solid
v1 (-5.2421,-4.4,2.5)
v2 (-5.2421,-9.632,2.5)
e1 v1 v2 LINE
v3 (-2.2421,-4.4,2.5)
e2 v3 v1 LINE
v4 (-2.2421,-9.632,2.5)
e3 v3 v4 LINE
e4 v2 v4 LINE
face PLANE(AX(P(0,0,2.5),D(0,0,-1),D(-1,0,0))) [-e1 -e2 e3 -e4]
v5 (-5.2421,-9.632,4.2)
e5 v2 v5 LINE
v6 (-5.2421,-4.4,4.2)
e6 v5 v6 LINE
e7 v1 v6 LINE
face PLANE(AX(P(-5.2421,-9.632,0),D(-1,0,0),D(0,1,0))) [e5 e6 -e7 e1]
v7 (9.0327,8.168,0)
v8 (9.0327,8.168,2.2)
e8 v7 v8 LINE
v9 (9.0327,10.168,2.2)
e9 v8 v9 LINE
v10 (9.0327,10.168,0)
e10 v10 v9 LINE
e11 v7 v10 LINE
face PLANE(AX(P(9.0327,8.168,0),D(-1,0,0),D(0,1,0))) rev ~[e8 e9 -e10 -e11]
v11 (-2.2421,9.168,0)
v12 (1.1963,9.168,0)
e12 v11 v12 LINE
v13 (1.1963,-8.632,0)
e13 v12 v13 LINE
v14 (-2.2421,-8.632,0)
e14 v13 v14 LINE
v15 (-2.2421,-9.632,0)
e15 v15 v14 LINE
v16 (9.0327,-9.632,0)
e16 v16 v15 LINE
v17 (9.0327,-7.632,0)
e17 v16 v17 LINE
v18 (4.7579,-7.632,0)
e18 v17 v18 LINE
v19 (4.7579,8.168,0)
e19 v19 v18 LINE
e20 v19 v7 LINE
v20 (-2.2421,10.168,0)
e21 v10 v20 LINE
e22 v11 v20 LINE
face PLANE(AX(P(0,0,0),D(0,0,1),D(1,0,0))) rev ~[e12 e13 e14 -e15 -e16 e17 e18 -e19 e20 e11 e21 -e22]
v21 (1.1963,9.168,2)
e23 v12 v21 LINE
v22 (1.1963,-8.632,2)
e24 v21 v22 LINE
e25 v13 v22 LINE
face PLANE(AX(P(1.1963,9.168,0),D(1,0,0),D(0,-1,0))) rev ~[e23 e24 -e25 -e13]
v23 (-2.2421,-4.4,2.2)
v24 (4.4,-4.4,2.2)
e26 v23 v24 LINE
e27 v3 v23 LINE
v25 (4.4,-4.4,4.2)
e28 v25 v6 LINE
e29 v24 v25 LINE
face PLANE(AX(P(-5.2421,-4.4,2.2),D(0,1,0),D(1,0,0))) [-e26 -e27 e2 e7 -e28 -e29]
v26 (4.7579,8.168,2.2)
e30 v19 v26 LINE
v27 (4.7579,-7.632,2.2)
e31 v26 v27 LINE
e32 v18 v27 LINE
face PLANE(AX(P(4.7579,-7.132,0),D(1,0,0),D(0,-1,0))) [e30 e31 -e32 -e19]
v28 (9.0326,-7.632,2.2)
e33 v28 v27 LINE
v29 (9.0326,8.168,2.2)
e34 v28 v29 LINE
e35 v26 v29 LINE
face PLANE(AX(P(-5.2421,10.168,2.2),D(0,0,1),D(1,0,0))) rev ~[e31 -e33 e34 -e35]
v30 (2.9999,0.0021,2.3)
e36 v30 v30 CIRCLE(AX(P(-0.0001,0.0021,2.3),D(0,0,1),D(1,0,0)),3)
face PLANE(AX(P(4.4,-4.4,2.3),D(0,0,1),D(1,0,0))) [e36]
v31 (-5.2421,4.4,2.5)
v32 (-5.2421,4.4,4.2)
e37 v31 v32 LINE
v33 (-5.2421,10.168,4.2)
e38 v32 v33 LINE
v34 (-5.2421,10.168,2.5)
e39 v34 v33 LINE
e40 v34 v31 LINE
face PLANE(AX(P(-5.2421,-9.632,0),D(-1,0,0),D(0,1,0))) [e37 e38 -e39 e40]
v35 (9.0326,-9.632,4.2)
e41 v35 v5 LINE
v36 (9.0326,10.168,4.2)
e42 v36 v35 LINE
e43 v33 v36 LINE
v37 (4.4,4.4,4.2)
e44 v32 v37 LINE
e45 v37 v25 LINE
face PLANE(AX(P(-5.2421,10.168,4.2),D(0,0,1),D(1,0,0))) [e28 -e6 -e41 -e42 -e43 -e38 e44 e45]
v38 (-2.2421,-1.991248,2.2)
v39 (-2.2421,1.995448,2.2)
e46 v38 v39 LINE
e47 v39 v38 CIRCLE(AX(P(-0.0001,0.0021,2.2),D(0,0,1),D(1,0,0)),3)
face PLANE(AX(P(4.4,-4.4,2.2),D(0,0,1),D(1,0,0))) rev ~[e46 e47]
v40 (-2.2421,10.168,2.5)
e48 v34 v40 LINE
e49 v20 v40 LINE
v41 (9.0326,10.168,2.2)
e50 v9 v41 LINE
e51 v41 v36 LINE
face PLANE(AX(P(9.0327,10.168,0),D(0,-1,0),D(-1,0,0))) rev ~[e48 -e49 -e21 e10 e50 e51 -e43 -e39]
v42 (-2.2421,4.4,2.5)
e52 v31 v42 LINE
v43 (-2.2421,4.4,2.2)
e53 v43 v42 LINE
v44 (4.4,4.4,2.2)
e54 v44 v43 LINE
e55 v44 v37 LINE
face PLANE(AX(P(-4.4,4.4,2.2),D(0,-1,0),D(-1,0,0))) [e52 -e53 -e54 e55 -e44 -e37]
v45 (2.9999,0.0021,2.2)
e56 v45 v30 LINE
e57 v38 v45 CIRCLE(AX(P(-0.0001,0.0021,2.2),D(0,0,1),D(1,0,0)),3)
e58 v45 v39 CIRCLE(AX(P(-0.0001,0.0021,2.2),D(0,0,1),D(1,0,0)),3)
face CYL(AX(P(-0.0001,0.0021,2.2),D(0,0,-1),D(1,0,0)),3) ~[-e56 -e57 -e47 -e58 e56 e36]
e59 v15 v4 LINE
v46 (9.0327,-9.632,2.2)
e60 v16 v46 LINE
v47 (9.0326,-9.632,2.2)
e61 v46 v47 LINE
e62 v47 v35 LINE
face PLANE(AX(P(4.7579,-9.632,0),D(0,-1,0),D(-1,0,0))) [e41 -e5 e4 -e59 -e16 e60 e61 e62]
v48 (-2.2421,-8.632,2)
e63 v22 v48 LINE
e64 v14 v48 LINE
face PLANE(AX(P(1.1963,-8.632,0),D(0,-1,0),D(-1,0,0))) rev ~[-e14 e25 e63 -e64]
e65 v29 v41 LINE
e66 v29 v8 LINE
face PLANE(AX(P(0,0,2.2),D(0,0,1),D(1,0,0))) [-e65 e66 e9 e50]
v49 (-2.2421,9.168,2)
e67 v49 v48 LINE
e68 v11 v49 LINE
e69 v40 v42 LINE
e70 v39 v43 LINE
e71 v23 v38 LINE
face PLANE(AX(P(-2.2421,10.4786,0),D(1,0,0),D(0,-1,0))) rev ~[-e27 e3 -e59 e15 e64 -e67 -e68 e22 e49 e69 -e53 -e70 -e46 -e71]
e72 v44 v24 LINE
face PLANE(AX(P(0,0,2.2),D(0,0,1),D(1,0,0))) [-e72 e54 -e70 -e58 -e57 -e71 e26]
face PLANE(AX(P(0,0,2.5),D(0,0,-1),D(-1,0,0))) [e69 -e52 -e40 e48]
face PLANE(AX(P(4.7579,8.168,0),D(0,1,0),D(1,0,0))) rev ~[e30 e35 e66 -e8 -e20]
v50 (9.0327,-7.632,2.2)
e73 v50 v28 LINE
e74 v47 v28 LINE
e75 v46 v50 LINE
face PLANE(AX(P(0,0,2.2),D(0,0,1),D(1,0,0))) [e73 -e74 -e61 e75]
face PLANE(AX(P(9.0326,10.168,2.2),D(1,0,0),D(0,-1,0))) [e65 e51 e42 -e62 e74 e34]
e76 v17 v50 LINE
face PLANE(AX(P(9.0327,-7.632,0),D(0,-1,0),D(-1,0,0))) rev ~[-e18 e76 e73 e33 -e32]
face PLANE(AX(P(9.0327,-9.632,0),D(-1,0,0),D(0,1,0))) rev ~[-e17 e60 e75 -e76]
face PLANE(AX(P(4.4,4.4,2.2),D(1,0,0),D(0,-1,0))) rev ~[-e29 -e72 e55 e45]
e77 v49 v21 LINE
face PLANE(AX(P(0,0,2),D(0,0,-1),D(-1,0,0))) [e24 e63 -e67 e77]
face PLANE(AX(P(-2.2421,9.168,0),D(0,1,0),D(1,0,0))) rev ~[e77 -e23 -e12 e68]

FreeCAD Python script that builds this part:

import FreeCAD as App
import Part
import Sketcher

V = App.Vector
Q = App.Units.Quantity

doc = App.newDocument("Part")
body = doc.addObject("PartDesign::Body", "Body")

# Sketch on XY plane
sketch1 = body.newObject("Sketcher::SketchObject", "Sketch")
sketch1.AttachmentSupport = (doc.getObject("XY_Plane"), [""])
sketch1.MapMode = "FlatFace"
sketch1.addGeometry([
    Part.LineSegment(V(4.8, -7.6, 0), V(4.8, 8.2, 0)),  # 0
    Part.LineSegment(V(4.8, 8.2, 0), V(9, 8.2, 0)),  # 1
    Part.LineSegment(V(9, 8.2, 0), V(9, 10.2, 0)),  # 2
    Part.LineSegment(V(9, 10.2, 0), V(-5.2, 10.2, 0)),  # 3
    Part.LineSegment(V(-5.2, 10.2, 0), V(-5.2, -9.6, 0)),  # 4
    Part.LineSegment(V(-5.2, -9.6, 0), V(9, -9.6, 0)),  # 5
    Part.LineSegment(V(9, -9.6, 0), V(9, -7.6, 0)),  # 6
    Part.LineSegment(V(9, -7.6, 0), V(4.8, -7.6, 0)),  # 7
], False)
sketch1.addConstraint([
    Sketcher.Constraint("Coincident", 0, 2, 1, 1),
    Sketcher.Constraint("Coincident", 1, 2, 2, 1),
    Sketcher.Constraint("Coincident", 2, 2, 3, 1),
    Sketcher.Constraint("Coincident", 3, 2, 4, 1),
    Sketcher.Constraint("Coincident", 4, 2, 5, 1),
    Sketcher.Constraint("Coincident", 5, 2, 6, 1),
    Sketcher.Constraint("Coincident", 6, 2, 7, 1),
    Sketcher.Constraint("Coincident", 7, 2, 0, 1),
    Sketcher.Constraint("Vertical", 0),
    Sketcher.Constraint("Horizontal", 1),
    Sketcher.Constraint("Vertical", 2),
    Sketcher.Constraint("Horizontal", 3),
    Sketcher.Constraint("Vertical", 4),
    Sketcher.Constraint("Horizontal", 5),
    Sketcher.Constraint("Vertical", 6),
    Sketcher.Constraint("Horizontal", 7),
    Sketcher.Constraint("Vertical", 2, 2, 5, 2),
    Sketcher.Constraint("Equal", 2, 6),
    Sketcher.Constraint("DistanceY", 2, 1, 2, 2, Q("2 mm")),
    Sketcher.Constraint("DistanceX", 3, 2, 0, 2, Q("10 mm")),
    Sketcher.Constraint("DistanceY", 0, 1, 0, 2, Q("15.8 mm")),
    Sketcher.Constraint("DistanceX", 1, 1, 1, 2, Q("4.2748 mm")),
    Sketcher.Constraint("DistanceX", -1, 1, 0, 2, Q("4.758 mm")),
    Sketcher.Constraint("DistanceY", -1, 1, 0, 2, Q("8.168 mm")),
])
pad1 = body.newObject("PartDesign::Pad", "Pad")
pad1.Profile = sketch1
pad1.Length = 2.2

# Sketch on XY plane
sketch2 = body.newObject("Sketcher::SketchObject", "Sketch001")
sketch2.AttachmentSupport = (doc.getObject("XY_Plane"), [""])
sketch2.MapMode = "FlatFace"
sketch2.AttachmentOffset = App.Placement(V(0, 0, 2.2), App.Rotation())
sketch2.addGeometry([
    Part.LineSegment(V(9, 10, 0), V(-5, 10, 0)),  # 0
    Part.LineSegment(V(-5, 10, 0), V(-5, 4, 0)),  # 1
    Part.LineSegment(V(-5, 4, 0), V(4, 4, 0)),  # 2
    Part.LineSegment(V(4, 4, 0), V(4, -4, 0)),  # 3
    Part.LineSegment(V(4, -4, 0), V(-5, -4, 0)),  # 4
    Part.LineSegment(V(-5, -4, 0), V(-5, -10, 0)),  # 5
    Part.LineSegment(V(-5, -10, 0), V(9, -10, 0)),  # 6
    Part.LineSegment(V(9, -10, 0), V(9, 10, 0)),  # 7
], False)
sketch2.addConstraint([
    Sketcher.Constraint("Coincident", 0, 2, 1, 1),
    Sketcher.Constraint("Coincident", 1, 2, 2, 1),
    Sketcher.Constraint("Coincident", 2, 2, 3, 1),
    Sketcher.Constraint("Coincident", 3, 2, 4, 1),
    Sketcher.Constraint("Coincident", 4, 2, 5, 1),
    Sketcher.Constraint("Coincident", 5, 2, 6, 1),
    Sketcher.Constraint("Coincident", 6, 2, 7, 1),
    Sketcher.Constraint("Coincident", 7, 2, 0, 1),
    Sketcher.Constraint("Horizontal", 0),
    Sketcher.Constraint("Vertical", 1),
    Sketcher.Constraint("Horizontal", 2),
    Sketcher.Constraint("Vertical", 3),
    Sketcher.Constraint("Horizontal", 4),
    Sketcher.Constraint("Vertical", 5),
    Sketcher.Constraint("Horizontal", 6),
    Sketcher.Constraint("Vertical", 7),
    Sketcher.Constraint("Symmetric", 1, 2, 4, 2, -1),
    Sketcher.Constraint("DistanceY", 3, 2, 3, 1, Q("8.8 mm")),
    Sketcher.Constraint("DistanceY", 7, 1, 7, 2, Q("19.8 mm")),
    Sketcher.Constraint("DistanceX", -1, 1, 2, 2, Q("4.4 mm")),
    Sketcher.Constraint("DistanceX", 2, 1, 2, 2, Q("9.642 mm")),
    Sketcher.Constraint("DistanceY", 1, 2, 1, 1, Q("5.768 mm")),
    Sketcher.Constraint("DistanceX", 0, 2, 0, 1, Q("14.2747 mm")),
])
pad2 = body.newObject("PartDesign::Pad", "Pad001")
pad2.Profile = sketch2
pad2.Length = 2

# Sketch on XY plane
sketch3 = body.newObject("Sketcher::SketchObject", "Sketch002")
sketch3.AttachmentSupport = (doc.getObject("XY_Plane"), [""])
sketch3.MapMode = "FlatFace"
sketch3.addGeometry([
    Part.LineSegment(V(-2, 10, 0), V(-2, -10, 0)),
    Part.LineSegment(V(-2, -10, 0), V(-9, -10, 0)),
    Part.LineSegment(V(-9, -10, 0), V(-9, 10, 0)),
    Part.LineSegment(V(-9, 10, 0), V(-2, 10, 0)),
], False)
sketch3.addConstraint([
    Sketcher.Constraint("Coincident", 0, 2, 1, 1),
    Sketcher.Constraint("Coincident", 1, 2, 2, 1),
    Sketcher.Constraint("Coincident", 2, 2, 3, 1),
    Sketcher.Constraint("Coincident", 3, 2, 0, 1),
    Sketcher.Constraint("Vertical", 0),
    Sketcher.Constraint("Horizontal", 1),
    Sketcher.Constraint("Vertical", 2),
    Sketcher.Constraint("Horizontal", 3),
    Sketcher.Constraint("DistanceX", 1, 2, 1, 1, Q("6.7796 mm")),
    Sketcher.Constraint("DistanceY", 0, 2, 0, 1, Q("20.3153 mm")),
    Sketcher.Constraint("DistanceX", 0, 2, -1, 1, Q("2.242 mm")),
    Sketcher.Constraint("DistanceY", 0, 2, -1, 1, Q("9.8367 mm")),
])
pocket1 = body.newObject("PartDesign::Pocket", "Pocket")
pocket1.Profile = sketch3
pocket1.Length = 2.5
pocket1.Reversed = True

# Sketch on XY plane
sketch4 = body.newObject("Sketcher::SketchObject", "Sketch003")
sketch4.AttachmentSupport = (doc.getObject("XY_Plane"), [""])
sketch4.MapMode = "FlatFace"
sketch4.addGeometry([
    Part.LineSegment(V(1.2, -8.6, 0), V(-2.2, -8.6, 0)),
    Part.LineSegment(V(-2.2, -8.6, 0), V(-2.2, 9.2, 0)),
    Part.LineSegment(V(-2.2, 9.2, 0), V(1.2, 9.2, 0)),
    Part.LineSegment(V(1.2, 9.2, 0), V(1.2, -8.6, 0)),
], False)
sketch4.addConstraint([
    Sketcher.Constraint("Coincident", 0, 2, 1, 1),
    Sketcher.Constraint("Coincident", 1, 2, 2, 1),
    Sketcher.Constraint("Coincident", 2, 2, 3, 1),
    Sketcher.Constraint("Coincident", 3, 2, 0, 1),
    Sketcher.Constraint("Horizontal", 0),
    Sketcher.Constraint("Vertical", 1),
    Sketcher.Constraint("Horizontal", 2),
    Sketcher.Constraint("Vertical", 3),
    Sketcher.Constraint("DistanceY", 1, 1, 1, 2, Q("17.8 mm")),
    Sketcher.Constraint("DistanceX", 0, 2, 0, 1, Q("3.4384 mm")),
    Sketcher.Constraint("DistanceX", 0, 2, -1, 1, Q("2.242 mm")),
    Sketcher.Constraint("DistanceY", 0, 2, -1, 1, Q("8.632 mm")),
])
pocket2 = body.newObject("PartDesign::Pocket", "Pocket001")
pocket2.Profile = sketch4
pocket2.Length = 2
pocket2.Reversed = True

# Sketch on XY plane
sketch5 = body.newObject("Sketcher::SketchObject", "Sketch004")
sketch5.AttachmentSupport = (doc.getObject("XY_Plane"), [""])
sketch5.MapMode = "FlatFace"
sketch5.AttachmentOffset = App.Placement(V(0, 0, 2.2), App.Rotation())
sketch5.addGeometry(Part.Circle(V(0, 0, 0), V(0, 0, 1), 3), False)
sketch5.addConstraint([
    Sketcher.Constraint("PointOnObject", 0, 3, -2),
    Sketcher.Constraint("Diameter", 0, Q("6 mm")),
    Sketcher.Constraint("DistanceY", -1, 1, 0, 3, Q("0.002 mm")),
])
pad3 = body.newObject("PartDesign::Pad", "Pad002")
pad3.Profile = sketch5
pad3.Length = 0.1

doc.recompute()
